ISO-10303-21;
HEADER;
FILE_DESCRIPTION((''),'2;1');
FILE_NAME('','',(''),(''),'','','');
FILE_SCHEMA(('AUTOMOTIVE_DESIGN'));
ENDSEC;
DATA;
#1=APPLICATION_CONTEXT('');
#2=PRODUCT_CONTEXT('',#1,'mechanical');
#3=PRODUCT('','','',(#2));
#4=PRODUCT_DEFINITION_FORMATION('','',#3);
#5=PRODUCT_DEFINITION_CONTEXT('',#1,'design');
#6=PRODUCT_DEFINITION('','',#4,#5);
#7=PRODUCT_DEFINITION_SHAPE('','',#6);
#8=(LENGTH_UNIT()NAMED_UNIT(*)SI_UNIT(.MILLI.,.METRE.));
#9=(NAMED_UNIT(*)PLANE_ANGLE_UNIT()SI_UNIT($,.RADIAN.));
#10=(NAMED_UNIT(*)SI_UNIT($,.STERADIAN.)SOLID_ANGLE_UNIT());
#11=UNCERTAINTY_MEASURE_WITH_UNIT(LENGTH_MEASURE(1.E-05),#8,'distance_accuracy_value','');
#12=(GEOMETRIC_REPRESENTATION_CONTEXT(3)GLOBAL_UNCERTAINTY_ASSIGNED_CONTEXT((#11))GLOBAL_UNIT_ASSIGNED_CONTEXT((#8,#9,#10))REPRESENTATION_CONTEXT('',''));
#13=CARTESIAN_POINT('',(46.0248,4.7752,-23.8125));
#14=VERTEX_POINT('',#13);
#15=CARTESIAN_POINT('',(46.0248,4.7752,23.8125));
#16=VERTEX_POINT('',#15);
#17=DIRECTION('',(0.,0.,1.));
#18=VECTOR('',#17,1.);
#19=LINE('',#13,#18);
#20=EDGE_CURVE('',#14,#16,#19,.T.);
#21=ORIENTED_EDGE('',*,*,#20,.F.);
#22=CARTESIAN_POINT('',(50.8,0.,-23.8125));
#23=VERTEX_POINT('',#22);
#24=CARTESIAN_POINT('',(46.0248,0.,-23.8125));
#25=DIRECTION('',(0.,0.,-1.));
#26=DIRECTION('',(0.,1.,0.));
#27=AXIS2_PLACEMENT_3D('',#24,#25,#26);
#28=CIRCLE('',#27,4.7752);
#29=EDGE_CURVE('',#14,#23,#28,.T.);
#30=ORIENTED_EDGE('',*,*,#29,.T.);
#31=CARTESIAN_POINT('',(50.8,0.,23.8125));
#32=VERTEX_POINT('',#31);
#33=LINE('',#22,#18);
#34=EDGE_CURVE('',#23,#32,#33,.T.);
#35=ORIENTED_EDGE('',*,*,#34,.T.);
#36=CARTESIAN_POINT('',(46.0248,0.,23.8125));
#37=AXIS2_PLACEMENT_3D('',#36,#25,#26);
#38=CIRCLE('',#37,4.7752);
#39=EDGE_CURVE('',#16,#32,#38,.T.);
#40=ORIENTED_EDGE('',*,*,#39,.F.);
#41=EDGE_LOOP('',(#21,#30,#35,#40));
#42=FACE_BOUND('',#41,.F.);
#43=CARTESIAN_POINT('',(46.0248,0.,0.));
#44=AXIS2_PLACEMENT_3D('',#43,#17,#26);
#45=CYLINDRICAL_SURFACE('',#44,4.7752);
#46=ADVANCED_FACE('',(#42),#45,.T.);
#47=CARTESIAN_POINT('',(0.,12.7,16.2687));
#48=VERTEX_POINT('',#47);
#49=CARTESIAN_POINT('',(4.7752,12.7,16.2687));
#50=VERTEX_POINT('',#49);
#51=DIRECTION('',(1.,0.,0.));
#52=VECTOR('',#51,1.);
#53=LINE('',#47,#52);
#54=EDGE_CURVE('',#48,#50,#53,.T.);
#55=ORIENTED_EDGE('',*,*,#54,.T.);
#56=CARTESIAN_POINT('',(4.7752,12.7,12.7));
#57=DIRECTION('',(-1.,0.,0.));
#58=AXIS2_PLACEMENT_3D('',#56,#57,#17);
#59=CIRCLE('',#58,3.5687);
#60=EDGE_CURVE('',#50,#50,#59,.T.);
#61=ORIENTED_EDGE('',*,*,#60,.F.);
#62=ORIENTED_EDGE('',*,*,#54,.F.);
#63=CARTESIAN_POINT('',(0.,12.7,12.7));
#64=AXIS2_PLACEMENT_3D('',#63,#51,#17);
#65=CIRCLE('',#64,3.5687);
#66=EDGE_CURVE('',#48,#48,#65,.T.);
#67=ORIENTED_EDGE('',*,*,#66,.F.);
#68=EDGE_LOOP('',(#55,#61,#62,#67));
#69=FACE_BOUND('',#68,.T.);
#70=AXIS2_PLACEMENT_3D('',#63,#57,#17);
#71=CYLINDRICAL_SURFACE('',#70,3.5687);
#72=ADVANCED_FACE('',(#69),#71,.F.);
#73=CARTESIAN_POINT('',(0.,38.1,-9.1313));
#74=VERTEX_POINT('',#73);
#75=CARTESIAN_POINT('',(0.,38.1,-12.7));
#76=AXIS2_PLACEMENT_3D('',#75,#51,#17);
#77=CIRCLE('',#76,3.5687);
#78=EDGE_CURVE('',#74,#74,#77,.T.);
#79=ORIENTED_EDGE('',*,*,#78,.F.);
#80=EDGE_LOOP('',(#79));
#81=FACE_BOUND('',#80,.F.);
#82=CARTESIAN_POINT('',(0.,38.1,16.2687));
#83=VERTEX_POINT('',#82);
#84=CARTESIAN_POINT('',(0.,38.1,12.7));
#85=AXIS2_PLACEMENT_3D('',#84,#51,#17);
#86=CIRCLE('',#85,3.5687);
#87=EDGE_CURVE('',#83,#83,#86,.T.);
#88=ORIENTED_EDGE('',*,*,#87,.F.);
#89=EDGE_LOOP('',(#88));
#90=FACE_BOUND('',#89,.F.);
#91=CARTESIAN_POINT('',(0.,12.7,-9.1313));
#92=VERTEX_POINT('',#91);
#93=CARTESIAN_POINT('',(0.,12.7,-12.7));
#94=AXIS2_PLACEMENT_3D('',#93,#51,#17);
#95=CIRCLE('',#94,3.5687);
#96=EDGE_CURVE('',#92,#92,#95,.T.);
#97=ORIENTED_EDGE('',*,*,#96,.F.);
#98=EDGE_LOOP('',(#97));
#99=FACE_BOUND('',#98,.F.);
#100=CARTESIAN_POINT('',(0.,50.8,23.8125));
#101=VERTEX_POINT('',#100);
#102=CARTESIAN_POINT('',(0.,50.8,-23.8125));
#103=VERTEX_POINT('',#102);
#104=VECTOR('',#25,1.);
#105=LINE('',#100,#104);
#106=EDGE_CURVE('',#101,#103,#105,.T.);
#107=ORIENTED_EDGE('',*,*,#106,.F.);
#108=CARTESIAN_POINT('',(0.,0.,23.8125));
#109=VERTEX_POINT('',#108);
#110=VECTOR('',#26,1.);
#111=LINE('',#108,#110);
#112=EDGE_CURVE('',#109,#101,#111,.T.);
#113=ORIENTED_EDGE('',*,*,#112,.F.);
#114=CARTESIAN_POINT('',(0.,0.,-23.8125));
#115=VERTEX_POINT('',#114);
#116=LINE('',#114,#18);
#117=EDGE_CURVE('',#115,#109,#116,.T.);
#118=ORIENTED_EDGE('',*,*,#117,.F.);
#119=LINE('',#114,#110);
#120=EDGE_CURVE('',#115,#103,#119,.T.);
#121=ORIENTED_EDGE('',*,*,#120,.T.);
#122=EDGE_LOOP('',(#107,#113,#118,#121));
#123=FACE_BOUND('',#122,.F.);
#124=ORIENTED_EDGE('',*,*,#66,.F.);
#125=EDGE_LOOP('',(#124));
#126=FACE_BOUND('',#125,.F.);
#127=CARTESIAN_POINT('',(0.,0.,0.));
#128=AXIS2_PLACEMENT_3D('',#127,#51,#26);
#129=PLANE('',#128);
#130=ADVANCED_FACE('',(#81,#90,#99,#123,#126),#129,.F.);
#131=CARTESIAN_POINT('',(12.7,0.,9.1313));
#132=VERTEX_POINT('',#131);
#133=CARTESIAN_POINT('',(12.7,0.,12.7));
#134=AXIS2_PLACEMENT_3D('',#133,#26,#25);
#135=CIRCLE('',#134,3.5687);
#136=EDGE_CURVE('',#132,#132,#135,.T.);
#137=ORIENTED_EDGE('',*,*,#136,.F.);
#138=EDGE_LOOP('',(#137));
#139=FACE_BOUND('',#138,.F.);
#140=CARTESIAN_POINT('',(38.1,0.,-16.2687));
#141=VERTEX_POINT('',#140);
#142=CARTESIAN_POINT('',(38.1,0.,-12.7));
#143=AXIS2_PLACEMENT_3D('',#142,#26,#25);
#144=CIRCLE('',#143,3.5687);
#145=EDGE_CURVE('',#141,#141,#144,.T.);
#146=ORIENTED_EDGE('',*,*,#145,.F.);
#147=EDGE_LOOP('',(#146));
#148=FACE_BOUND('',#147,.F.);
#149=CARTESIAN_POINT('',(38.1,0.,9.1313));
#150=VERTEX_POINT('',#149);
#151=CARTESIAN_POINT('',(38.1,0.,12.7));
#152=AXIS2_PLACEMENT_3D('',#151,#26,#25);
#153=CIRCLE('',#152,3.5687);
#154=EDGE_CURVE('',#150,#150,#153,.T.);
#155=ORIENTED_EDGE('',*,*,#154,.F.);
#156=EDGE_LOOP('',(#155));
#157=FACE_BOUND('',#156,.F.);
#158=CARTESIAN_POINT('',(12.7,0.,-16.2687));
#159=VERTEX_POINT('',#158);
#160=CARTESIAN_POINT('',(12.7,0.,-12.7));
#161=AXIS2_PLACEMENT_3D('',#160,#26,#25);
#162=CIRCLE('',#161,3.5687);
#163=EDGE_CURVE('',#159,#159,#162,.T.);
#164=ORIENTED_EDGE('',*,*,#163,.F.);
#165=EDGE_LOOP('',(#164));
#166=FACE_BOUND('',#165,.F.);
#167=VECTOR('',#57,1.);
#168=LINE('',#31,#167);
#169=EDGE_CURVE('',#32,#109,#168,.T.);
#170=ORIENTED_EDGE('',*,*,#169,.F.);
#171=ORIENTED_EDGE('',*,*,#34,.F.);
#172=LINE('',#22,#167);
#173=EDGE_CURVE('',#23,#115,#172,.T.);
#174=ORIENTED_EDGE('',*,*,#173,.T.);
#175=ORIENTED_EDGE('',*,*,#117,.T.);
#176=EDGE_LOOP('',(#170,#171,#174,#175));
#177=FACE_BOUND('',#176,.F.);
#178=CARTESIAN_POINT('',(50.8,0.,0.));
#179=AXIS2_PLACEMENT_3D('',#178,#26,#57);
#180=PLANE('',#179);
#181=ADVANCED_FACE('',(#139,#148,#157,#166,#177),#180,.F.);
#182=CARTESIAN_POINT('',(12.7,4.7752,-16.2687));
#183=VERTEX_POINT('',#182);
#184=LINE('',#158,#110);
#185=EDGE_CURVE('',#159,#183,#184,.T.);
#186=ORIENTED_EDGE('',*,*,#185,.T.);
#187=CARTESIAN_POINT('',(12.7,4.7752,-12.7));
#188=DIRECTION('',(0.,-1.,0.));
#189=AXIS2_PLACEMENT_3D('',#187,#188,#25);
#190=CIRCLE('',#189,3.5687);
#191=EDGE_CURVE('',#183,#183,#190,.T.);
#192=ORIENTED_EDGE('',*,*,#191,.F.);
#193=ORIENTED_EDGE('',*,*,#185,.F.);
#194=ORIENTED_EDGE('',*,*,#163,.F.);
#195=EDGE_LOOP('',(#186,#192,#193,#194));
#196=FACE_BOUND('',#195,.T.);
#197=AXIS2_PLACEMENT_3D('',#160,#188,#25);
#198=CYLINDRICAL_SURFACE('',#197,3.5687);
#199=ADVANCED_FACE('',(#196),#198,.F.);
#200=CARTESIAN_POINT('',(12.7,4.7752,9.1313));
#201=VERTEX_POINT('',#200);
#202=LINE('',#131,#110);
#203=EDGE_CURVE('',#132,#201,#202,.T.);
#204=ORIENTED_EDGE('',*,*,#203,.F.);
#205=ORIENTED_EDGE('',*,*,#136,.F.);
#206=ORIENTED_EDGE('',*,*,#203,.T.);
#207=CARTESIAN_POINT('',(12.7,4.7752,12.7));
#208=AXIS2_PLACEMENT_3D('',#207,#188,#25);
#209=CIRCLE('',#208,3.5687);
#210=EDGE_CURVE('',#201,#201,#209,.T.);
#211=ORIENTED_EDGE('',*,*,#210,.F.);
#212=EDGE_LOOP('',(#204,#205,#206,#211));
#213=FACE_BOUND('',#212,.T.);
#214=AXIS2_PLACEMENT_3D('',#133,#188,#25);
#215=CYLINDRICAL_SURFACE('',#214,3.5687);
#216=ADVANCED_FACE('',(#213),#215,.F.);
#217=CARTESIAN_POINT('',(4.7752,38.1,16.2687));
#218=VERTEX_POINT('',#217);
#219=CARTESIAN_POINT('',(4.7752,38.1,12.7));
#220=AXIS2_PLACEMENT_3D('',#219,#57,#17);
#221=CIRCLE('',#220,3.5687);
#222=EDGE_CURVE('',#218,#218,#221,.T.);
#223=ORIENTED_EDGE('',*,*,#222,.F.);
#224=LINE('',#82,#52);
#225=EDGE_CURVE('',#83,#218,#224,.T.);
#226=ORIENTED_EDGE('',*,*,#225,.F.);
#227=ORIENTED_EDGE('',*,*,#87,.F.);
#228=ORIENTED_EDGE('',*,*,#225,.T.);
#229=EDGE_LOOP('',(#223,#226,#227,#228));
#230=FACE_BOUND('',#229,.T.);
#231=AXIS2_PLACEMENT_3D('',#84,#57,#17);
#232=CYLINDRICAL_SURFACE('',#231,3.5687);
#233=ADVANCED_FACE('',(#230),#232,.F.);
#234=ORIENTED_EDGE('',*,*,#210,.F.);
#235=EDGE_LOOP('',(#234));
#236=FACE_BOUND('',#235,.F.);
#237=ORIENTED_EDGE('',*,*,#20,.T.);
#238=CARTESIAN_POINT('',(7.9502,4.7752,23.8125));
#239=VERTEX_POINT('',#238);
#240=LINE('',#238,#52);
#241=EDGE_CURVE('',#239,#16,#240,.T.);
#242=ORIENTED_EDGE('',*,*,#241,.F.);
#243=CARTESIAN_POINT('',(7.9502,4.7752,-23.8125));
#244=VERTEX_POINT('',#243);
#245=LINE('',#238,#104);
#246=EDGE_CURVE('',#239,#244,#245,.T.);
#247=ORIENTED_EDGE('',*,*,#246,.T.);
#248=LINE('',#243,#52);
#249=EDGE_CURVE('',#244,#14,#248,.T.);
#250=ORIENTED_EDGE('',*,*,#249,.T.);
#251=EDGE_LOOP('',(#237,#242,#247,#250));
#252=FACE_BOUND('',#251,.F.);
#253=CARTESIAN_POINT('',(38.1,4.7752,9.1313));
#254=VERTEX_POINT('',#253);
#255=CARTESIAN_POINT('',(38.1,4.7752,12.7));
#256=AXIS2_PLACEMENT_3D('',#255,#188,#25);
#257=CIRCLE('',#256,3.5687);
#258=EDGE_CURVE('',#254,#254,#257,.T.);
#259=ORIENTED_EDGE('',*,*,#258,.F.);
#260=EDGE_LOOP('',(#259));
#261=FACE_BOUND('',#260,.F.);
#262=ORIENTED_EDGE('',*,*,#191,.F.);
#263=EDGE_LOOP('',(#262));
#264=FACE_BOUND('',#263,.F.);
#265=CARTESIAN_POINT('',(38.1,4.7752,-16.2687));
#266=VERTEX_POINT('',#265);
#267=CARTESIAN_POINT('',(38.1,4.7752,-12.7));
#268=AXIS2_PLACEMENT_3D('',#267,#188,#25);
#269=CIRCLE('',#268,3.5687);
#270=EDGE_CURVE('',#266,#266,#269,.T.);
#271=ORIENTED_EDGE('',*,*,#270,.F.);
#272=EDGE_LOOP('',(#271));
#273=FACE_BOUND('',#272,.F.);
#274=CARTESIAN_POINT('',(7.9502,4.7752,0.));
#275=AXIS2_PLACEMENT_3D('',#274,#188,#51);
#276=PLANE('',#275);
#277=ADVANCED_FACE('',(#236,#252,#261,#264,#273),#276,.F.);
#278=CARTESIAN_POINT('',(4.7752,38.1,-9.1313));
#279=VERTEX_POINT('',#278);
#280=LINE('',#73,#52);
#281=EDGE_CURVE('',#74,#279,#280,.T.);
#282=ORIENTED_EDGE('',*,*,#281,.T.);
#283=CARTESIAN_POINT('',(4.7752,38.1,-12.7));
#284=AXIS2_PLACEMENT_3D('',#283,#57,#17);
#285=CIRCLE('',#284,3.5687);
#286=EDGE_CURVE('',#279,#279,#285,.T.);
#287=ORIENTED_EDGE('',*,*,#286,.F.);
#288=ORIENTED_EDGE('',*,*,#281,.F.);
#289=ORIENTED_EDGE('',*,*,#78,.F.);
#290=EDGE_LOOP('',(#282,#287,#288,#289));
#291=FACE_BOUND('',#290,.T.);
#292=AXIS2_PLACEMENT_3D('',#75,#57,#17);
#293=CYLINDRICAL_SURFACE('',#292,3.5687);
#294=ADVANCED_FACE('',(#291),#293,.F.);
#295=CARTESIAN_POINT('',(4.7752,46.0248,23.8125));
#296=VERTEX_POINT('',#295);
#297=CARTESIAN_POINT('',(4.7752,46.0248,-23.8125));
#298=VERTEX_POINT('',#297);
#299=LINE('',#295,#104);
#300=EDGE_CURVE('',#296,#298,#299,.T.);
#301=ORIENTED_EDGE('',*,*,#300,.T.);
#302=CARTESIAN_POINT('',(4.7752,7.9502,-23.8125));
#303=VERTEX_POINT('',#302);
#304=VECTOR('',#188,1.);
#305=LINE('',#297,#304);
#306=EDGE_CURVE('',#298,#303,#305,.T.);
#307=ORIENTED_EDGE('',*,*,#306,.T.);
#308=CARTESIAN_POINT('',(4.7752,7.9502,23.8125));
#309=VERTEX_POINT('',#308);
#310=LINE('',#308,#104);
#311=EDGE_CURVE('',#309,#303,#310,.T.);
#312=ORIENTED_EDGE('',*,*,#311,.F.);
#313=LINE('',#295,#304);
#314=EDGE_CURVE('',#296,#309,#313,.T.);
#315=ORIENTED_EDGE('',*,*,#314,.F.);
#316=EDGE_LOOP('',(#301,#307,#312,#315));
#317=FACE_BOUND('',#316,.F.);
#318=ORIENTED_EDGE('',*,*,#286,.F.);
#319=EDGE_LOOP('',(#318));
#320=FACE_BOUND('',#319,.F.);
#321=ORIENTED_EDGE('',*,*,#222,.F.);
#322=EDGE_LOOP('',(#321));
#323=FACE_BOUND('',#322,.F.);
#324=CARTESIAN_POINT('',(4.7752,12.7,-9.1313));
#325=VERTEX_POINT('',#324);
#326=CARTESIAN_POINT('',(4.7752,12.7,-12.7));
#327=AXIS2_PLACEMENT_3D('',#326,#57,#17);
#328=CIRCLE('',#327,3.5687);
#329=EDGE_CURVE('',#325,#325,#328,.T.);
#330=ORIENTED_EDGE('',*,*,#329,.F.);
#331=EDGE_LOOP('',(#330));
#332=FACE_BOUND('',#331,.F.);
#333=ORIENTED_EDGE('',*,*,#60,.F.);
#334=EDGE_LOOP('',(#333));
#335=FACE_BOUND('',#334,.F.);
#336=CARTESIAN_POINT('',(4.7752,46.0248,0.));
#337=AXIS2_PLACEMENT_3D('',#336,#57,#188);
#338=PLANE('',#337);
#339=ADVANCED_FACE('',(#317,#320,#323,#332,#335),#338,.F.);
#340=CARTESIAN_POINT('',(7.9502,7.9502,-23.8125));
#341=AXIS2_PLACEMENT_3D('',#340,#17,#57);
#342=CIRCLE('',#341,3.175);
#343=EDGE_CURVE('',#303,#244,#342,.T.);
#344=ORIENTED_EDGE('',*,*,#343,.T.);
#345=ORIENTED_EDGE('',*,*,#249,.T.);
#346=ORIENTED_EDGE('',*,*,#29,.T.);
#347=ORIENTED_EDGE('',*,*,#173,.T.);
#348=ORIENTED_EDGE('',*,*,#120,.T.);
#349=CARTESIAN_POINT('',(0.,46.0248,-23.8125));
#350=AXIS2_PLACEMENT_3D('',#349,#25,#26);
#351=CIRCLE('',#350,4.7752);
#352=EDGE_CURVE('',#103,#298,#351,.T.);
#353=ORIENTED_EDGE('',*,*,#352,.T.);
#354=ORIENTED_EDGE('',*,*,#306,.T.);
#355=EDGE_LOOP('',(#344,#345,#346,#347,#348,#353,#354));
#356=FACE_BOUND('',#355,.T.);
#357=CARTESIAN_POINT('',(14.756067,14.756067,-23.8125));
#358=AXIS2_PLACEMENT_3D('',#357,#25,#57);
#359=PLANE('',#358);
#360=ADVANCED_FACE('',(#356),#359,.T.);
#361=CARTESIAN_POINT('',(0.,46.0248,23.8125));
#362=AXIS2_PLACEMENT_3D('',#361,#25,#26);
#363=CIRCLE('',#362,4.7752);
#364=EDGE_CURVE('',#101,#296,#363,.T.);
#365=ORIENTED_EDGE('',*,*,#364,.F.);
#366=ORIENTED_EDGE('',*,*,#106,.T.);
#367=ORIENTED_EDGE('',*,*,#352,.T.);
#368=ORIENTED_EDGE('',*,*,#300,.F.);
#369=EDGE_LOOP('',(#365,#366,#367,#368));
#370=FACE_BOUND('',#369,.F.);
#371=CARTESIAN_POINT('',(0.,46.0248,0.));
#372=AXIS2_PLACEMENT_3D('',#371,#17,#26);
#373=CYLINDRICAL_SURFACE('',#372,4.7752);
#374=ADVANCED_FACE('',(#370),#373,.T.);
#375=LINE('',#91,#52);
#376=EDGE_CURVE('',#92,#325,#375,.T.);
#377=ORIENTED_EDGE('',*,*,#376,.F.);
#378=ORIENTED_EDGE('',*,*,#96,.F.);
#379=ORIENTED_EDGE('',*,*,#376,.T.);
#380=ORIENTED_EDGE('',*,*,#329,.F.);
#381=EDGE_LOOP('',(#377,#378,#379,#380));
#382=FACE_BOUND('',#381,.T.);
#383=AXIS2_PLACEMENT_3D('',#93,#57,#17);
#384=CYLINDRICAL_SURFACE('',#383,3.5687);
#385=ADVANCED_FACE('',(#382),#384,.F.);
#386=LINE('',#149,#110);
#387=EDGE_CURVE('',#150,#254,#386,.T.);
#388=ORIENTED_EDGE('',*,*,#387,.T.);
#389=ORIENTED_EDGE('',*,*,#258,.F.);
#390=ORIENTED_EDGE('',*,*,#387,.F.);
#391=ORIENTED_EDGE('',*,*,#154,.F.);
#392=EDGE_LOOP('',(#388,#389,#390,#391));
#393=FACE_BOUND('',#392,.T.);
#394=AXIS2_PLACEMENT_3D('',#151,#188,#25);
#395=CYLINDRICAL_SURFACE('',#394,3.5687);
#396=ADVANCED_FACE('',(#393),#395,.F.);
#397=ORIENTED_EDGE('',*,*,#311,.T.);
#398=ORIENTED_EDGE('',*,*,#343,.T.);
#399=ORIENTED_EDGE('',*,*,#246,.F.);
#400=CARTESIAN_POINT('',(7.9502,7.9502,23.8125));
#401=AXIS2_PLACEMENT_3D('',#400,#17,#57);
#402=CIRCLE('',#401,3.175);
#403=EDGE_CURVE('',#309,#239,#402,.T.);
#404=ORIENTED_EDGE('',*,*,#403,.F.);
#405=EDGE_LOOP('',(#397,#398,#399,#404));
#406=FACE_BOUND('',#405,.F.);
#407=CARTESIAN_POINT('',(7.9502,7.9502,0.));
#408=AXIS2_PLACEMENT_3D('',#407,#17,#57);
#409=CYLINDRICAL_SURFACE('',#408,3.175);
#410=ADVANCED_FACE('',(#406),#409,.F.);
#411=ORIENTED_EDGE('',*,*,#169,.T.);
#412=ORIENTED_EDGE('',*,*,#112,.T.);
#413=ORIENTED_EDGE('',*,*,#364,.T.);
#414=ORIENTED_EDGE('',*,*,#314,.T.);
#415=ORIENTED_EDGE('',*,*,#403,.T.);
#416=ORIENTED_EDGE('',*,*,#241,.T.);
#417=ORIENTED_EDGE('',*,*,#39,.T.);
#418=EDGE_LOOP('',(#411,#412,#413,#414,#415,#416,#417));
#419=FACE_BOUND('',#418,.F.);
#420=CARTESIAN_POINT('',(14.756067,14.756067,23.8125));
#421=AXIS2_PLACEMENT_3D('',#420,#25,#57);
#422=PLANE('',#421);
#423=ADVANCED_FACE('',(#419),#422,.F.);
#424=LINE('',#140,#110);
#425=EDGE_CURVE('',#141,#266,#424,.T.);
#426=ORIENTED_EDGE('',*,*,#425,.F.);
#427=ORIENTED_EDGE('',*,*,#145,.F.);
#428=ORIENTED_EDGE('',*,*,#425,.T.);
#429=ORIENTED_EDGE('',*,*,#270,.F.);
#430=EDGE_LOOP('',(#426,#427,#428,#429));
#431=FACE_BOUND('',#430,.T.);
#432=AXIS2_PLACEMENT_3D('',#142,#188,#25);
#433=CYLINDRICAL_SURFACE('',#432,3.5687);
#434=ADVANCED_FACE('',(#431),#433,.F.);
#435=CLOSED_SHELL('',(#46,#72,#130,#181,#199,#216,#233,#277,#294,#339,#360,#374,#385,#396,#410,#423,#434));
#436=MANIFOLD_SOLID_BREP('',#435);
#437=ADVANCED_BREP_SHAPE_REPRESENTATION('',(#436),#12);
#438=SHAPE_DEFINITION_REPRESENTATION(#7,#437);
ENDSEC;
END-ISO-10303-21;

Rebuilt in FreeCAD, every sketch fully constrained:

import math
import FreeCAD as App
import Part
import Sketcher
from FreeCAD import Vector
Q = App.Units.Quantity

doc = App.newDocument("Part")
body = doc.addObject("PartDesign::Body", "Body")

sketch1 = doc.addObject("Sketcher::SketchObject", "Sketch")
body.addObject(sketch1)
sketch1.AttachmentSupport = (doc.XY_Plane, [""])
sketch1.MapMode = "FlatFace"
sketch1.addGeometry([
    Part.LineSegment(Vector(0, 50.8, 0), Vector(0, 0, 0)),
    Part.LineSegment(Vector(0, 0, 0), Vector(50.8, 0, 0)),
    Part.ArcOfCircle(Part.Circle(Vector(46.0248, 0, 0), Vector(0, 0, 1), 4.7752), math.radians(0), math.radians(90)),
    Part.LineSegment(Vector(46.0248, 4.7752, 0), Vector(7.9502, 4.7752, 0)),
    Part.ArcOfCircle(Part.Circle(Vector(7.9502, 7.9502, 0), Vector(0, 0, 1), 3.175), math.radians(-180), math.radians(-90)),
    Part.LineSegment(Vector(4.7752, 7.9502, 0), Vector(4.7752, 46.0248, 0)),
    Part.ArcOfCircle(Part.Circle(Vector(0, 46.0248, 0), Vector(0, 0, 1), 4.7752), math.radians(0), math.radians(90)),
], False)
sketch1.addConstraint([
    Sketcher.Constraint("Coincident", 0, 2, 1, 1),
    Sketcher.Constraint("Coincident", 1, 2, 2, 1),
    Sketcher.Constraint("Tangent", 2, 2, 3, 1),
    Sketcher.Constraint("Tangent", 3, 2, 4, 2),
    Sketcher.Constraint("Tangent", 4, 1, 5, 1),
    Sketcher.Constraint("Tangent", 5, 2, 6, 1),
    Sketcher.Constraint("Coincident", 6, 2, 0, 1),
    Sketcher.Constraint("Vertical", 0),
    Sketcher.Constraint("Horizontal", 1),
    Sketcher.Constraint("Horizontal", 3),
    Sketcher.Constraint("Vertical", 5),
    Sketcher.Constraint("Coincident", 0, 2, -1, 1),
    Sketcher.Constraint("Equal", 2, 6),
    Sketcher.Constraint("PointOnObject", 2, 3, -1),
    Sketcher.Constraint("PointOnObject", 6, 3, -2),
    Sketcher.Constraint("Equal", 1, 0),
    Sketcher.Constraint("DistanceX", 1, 1, 1, 2, Q("2 in")),
    Sketcher.Constraint("Radius", 2, Q("0.188 in")),
    Sketcher.Constraint("Radius", 4, Q("0.125 in")),
])
pad1 = doc.addObject("PartDesign::Pad", "Pad")
body.addObject(pad1)
pad1.Profile = sketch1
pad1.Length = Q("1.875 in")
pad1.Midplane = True

sketch2 = doc.addObject("Sketcher::SketchObject", "Sketch001")
body.addObject(sketch2)
sketch2.AttachmentSupport = (doc.XZ_Plane, [""])
sketch2.MapMode = "FlatFace"
sketch2.addGeometry([
    Part.Circle(Vector(12.7, 12.7, 0), Vector(0, 0, 1), 3.5687),
    Part.Circle(Vector(38.1, 12.7, 0), Vector(0, 0, 1), 3.5687),
    Part.Circle(Vector(12.7, -12.7, 0), Vector(0, 0, 1), 3.5687),
    Part.Circle(Vector(38.1, -12.7, 0), Vector(0, 0, 1), 3.5687),
], False)
sketch2.addConstraint([
    Sketcher.Constraint("Equal", 0, 1),
    Sketcher.Constraint("Equal", 1, 2),
    Sketcher.Constraint("Equal", 2, 3),
    Sketcher.Constraint("Symmetric", 0, 3, 2, 3, -1),
    Sketcher.Constraint("Symmetric", 1, 3, 3, 3, -1),
    Sketcher.Constraint("Horizontal", 0, 3, 1, 3),
    Sketcher.Constraint("Diameter", 0, Q("0.281 in")),
    Sketcher.Constraint("DistanceX", 0, 3, 1, 3, Q("1 in")),
    Sketcher.Constraint("DistanceY", 2, 3, 0, 3, Q("1 in")),
    Sketcher.Constraint("DistanceX", -1, 1, 0, 3, Q("0.5 in")),
])
pocket1 = doc.addObject("PartDesign::Pocket", "Pocket")
body.addObject(pocket1)
pocket1.Profile = sketch2
pocket1.Type = "ThroughAll"

sketch3 = doc.addObject("Sketcher::SketchObject", "Sketch002")
body.addObject(sketch3)
sketch3.AttachmentSupport = (doc.YZ_Plane, [""])
sketch3.MapMode = "FlatFace"
sketch3.addGeometry([
    Part.Circle(Vector(12.7, 12.7, 0), Vector(0, 0, 1), 3.5687),
    Part.Circle(Vector(38.1, 12.7, 0), Vector(0, 0, 1), 3.5687),
    Part.Circle(Vector(12.7, -12.7, 0), Vector(0, 0, 1), 3.5687),
    Part.Circle(Vector(38.1, -12.7, 0), Vector(0, 0, 1), 3.5687),
], False)
sketch3.addConstraint([
    Sketcher.Constraint("Equal", 0, 1),
    Sketcher.Constraint("Equal", 1, 2),
    Sketcher.Constraint("Equal", 2, 3),
    Sketcher.Constraint("Symmetric", 0, 3, 2, 3, -1),
    Sketcher.Constraint("Symmetric", 1, 3, 3, 3, -1),
    Sketcher.Constraint("Horizontal", 0, 3, 1, 3),
    Sketcher.Constraint("Diameter", 0, Q("0.281 in")),
    Sketcher.Constraint("DistanceX", 0, 3, 1, 3, Q("1 in")),
    Sketcher.Constraint("DistanceY", 2, 3, 0, 3, Q("1 in")),
    Sketcher.Constraint("DistanceX", -1, 1, 0, 3, Q("0.5 in")),
])
pocket2 = doc.addObject("PartDesign::Pocket", "Pocket001")
body.addObject(pocket2)
pocket2.Profile = sketch3
pocket2.Type = "ThroughAll"
pocket2.Reversed = True

doc.recompute()
